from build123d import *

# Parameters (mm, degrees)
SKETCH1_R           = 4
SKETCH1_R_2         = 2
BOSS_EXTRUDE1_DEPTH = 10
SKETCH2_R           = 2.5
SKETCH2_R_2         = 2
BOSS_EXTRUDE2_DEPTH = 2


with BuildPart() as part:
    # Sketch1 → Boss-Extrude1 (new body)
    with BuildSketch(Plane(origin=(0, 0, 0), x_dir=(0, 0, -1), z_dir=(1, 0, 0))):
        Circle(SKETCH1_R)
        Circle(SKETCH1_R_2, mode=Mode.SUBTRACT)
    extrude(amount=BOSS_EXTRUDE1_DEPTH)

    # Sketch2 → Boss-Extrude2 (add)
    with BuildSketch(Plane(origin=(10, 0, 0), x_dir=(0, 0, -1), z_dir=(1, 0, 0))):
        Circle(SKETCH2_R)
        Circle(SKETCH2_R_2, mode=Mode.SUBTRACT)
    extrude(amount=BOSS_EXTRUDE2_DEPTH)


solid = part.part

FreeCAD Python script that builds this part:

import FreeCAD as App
import Part
import Sketcher

V = App.Vector

doc = App.newDocument("Part")
body = doc.addObject("PartDesign::Body", "Body")

# Sketch on YZ plane
sketch1 = body.newObject("Sketcher::SketchObject", "Sketch")
sketch1.AttachmentSupport = (doc.getObject("YZ_Plane"), [""])
sketch1.MapMode = "FlatFace"
sketch1.addGeometry(Part.Circle(V(0, 0, 0), V(0, 0, 1), 4), False)
sketch1.addGeometry(Part.Circle(V(0, 0, 0), V(0, 0, 1), 2), False)
sketch1.addConstraint(Sketcher.Constraint("Coincident", 0, 3, -1, 1))
sketch1.addConstraint(Sketcher.Constraint("Coincident", 1, 3, -1, 1))
sketch1.addConstraint(Sketcher.Constraint("Diameter", 0, 8.0))
sketch1.addConstraint(Sketcher.Constraint("Diameter", 1, 4.0))
pad1 = body.newObject("PartDesign::Pad", "Pad")
pad1.Profile = sketch1
pad1.Length = 10

# Sketch on YZ plane
sketch2 = body.newObject("Sketcher::SketchObject", "Sketch001")
sketch2.AttachmentSupport = (doc.getObject("YZ_Plane"), [""])
sketch2.MapMode = "FlatFace"
sketch2.AttachmentOffset = App.Placement(V(0, 0, 10), App.Rotation())
sketch2.addGeometry(Part.Circle(V(0, 0, 0), V(0, 0, 1), 2.5), False)
sketch2.addGeometry(Part.Circle(V(0, 0, 0), V(0, 0, 1), 2), False)
sketch2.addConstraint(Sketcher.Constraint("Coincident", 0, 3, -1, 1))
sketch2.addConstraint(Sketcher.Constraint("Coincident", 1, 3, -1, 1))
sketch2.addConstraint(Sketcher.Constraint("Diameter", 0, 5.0))
sketch2.addConstraint(Sketcher.Constraint("Diameter", 1, 4.0))
pad2 = body.newObject("PartDesign::Pad", "Pad001")
pad2.Profile = sketch2
pad2.Length = 2

doc.recompute()
